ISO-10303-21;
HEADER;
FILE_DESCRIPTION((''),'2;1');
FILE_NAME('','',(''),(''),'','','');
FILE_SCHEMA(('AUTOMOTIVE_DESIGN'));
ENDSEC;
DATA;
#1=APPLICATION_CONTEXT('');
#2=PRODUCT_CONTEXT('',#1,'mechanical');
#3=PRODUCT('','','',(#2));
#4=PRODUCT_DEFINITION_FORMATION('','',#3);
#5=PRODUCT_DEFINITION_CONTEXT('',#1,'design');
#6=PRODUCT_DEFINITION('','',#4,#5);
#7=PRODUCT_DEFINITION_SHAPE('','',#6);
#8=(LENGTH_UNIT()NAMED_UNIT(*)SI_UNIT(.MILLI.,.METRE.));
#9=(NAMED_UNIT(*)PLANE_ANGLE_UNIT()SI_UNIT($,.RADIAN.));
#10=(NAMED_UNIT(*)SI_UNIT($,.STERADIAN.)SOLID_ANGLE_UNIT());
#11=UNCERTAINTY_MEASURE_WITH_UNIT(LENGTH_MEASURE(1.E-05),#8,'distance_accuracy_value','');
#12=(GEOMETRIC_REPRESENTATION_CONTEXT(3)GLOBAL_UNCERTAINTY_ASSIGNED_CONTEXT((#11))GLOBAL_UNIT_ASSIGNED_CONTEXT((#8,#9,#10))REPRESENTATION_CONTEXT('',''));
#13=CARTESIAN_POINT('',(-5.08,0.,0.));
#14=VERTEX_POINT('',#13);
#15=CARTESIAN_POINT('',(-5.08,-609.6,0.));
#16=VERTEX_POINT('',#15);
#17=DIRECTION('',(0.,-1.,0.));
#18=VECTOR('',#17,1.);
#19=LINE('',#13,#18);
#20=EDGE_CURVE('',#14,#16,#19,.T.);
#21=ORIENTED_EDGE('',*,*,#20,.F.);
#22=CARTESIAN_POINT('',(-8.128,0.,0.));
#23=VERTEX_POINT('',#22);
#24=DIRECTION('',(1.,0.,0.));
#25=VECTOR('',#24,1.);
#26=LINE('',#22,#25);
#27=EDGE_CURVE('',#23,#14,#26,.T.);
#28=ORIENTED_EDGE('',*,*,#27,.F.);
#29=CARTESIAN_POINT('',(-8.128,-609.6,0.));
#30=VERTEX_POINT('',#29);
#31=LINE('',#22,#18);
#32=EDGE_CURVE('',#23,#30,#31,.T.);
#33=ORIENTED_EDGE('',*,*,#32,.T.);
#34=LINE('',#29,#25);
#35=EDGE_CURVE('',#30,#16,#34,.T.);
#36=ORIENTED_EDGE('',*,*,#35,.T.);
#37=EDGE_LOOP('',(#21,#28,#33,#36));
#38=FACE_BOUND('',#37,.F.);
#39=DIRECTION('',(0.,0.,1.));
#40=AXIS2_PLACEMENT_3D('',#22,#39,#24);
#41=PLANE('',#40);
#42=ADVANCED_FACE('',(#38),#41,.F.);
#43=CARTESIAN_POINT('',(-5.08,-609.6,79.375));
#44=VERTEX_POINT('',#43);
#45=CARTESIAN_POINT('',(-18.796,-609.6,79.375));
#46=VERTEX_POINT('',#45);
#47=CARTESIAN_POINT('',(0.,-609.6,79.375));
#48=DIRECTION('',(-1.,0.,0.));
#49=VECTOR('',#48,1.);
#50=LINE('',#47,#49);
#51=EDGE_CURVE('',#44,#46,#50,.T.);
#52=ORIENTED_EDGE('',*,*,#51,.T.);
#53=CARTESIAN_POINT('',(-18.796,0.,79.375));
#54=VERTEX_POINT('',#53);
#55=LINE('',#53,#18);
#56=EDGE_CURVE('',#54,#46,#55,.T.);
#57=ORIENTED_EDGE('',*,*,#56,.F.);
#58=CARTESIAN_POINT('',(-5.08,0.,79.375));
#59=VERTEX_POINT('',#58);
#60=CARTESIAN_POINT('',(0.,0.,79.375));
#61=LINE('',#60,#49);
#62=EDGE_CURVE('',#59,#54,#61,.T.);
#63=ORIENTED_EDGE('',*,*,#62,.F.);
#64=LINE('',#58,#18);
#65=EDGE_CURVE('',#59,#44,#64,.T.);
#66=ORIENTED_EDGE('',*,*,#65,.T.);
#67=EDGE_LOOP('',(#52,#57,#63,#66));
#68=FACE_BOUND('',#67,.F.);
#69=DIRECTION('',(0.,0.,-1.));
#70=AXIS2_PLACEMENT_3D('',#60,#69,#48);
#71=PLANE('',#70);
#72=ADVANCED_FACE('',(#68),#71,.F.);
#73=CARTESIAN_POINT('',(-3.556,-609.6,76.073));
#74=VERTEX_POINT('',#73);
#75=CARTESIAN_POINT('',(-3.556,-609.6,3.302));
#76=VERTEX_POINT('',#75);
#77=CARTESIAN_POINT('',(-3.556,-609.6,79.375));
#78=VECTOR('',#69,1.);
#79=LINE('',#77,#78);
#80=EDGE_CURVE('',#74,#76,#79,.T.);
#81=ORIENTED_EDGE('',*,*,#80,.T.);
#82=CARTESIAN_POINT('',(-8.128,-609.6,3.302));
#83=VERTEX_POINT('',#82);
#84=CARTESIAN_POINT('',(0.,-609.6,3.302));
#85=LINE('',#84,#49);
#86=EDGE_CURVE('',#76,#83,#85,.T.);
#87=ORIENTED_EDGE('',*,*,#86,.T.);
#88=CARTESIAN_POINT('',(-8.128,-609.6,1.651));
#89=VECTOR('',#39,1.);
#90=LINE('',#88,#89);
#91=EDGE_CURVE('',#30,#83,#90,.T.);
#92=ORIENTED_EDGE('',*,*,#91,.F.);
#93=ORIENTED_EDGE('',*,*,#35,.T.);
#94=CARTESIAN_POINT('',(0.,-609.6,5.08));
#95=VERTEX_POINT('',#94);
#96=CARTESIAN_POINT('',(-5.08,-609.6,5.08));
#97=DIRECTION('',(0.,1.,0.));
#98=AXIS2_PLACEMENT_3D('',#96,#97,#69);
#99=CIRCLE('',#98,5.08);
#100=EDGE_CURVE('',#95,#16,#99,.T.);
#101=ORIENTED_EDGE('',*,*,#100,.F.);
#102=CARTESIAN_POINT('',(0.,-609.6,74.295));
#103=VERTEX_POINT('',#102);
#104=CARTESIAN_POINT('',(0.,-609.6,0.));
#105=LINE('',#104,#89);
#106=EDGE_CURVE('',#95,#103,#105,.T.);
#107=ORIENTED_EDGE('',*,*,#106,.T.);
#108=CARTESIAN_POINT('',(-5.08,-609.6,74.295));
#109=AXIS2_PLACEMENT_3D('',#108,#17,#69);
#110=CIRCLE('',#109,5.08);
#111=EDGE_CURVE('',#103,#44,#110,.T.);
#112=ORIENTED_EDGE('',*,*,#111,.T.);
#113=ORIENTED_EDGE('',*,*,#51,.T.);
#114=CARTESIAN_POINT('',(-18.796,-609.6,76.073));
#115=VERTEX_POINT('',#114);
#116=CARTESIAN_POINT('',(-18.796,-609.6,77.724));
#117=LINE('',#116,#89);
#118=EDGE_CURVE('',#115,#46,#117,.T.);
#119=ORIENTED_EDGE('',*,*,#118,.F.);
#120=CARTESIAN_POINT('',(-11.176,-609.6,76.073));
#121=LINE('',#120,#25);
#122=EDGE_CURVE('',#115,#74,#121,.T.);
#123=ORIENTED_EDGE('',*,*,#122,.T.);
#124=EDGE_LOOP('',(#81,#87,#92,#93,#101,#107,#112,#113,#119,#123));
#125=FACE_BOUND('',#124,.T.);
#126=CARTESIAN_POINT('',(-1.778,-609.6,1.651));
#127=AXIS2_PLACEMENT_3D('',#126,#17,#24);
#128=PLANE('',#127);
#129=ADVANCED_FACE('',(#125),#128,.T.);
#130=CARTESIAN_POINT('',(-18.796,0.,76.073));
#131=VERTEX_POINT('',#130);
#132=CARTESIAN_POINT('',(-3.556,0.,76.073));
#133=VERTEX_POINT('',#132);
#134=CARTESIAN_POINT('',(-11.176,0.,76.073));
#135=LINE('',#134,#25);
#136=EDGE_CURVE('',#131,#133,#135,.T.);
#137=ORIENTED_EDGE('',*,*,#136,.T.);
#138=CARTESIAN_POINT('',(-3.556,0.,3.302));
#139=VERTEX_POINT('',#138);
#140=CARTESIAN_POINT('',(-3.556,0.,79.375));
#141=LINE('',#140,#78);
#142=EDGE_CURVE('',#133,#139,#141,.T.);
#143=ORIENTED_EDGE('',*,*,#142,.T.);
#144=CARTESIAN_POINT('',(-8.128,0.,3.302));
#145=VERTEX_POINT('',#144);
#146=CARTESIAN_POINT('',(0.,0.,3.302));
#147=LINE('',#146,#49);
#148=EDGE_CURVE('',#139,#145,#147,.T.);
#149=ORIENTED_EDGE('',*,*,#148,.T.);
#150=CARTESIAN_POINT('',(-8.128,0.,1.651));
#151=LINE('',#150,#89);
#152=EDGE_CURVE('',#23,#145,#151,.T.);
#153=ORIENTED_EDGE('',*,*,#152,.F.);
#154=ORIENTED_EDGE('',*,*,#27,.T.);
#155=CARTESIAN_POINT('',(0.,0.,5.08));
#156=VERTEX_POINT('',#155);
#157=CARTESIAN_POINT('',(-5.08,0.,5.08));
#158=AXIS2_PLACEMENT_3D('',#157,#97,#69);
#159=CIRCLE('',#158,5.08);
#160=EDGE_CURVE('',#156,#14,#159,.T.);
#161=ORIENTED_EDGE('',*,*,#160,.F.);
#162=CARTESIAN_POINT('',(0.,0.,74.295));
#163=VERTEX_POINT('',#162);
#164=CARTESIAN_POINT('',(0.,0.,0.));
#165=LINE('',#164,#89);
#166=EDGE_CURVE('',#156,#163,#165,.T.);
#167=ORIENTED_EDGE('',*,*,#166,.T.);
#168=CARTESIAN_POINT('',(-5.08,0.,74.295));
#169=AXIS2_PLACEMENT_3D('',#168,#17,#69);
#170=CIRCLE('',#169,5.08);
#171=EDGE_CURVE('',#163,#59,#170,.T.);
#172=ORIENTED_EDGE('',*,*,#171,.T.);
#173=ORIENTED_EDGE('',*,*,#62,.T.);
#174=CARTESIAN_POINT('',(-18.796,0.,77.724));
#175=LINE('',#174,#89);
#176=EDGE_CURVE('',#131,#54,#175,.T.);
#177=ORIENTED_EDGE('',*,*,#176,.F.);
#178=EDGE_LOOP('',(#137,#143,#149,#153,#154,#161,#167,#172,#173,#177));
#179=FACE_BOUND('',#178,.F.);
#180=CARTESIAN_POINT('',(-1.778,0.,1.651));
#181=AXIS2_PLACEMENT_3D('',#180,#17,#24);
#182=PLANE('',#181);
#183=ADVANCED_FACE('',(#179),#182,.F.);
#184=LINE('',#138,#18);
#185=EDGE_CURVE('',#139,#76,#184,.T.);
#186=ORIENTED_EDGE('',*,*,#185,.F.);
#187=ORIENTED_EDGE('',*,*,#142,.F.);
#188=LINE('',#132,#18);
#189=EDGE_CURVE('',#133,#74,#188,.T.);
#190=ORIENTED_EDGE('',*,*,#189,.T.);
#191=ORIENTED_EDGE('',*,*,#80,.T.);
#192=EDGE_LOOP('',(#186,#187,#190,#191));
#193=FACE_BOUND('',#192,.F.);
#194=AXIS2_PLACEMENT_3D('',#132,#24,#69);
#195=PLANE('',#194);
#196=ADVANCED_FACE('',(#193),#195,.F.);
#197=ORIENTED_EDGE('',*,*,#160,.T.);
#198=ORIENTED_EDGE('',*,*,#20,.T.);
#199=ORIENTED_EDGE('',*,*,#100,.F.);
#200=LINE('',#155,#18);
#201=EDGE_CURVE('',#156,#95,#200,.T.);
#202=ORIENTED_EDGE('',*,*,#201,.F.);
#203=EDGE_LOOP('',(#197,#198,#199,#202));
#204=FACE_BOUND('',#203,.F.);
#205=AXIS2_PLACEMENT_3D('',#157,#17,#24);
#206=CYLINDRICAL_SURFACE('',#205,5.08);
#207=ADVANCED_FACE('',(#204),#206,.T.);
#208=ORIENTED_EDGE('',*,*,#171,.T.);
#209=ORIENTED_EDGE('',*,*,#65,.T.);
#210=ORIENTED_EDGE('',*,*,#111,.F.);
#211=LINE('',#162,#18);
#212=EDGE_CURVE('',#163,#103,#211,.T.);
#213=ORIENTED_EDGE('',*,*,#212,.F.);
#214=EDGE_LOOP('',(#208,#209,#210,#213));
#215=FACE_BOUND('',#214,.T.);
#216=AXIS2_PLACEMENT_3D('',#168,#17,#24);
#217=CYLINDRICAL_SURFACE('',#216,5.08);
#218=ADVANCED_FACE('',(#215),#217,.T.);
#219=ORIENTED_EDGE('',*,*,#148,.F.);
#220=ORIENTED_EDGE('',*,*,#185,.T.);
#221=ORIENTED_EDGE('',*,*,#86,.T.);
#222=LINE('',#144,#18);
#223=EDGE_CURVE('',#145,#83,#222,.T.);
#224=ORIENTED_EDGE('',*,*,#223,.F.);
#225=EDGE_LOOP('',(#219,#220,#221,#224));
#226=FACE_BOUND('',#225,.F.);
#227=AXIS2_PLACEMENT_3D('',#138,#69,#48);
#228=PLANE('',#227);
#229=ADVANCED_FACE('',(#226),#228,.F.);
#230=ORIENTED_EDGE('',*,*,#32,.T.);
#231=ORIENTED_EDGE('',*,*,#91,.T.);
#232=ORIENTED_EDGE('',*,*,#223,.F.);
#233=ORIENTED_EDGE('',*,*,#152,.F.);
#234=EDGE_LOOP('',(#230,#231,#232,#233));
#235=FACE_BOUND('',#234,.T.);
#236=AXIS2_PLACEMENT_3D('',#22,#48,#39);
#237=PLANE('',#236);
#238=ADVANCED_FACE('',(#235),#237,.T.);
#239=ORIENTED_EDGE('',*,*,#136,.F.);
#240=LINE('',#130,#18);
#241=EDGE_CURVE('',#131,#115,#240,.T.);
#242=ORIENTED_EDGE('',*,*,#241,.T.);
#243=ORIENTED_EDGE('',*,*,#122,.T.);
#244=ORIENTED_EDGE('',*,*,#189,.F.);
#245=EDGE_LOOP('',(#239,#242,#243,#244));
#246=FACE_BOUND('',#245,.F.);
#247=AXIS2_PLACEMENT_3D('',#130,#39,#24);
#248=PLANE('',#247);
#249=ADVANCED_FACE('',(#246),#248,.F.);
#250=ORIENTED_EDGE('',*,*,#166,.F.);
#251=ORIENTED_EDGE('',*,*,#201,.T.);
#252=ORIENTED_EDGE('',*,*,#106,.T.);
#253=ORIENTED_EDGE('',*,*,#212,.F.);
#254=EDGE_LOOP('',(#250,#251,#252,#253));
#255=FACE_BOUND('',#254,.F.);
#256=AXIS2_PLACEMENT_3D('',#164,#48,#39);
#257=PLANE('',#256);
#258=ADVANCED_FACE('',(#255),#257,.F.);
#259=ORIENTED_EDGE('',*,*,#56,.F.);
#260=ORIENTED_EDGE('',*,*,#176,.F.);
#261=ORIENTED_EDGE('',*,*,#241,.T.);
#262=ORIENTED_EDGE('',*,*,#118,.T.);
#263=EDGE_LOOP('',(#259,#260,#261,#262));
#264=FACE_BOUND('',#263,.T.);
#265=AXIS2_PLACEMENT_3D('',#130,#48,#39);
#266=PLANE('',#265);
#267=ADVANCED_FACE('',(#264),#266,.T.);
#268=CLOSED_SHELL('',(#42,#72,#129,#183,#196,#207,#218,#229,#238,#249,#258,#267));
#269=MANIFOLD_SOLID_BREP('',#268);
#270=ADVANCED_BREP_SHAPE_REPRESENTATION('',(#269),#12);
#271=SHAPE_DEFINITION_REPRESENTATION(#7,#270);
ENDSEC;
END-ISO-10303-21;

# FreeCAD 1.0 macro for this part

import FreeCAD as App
import Part
import Sketcher
from FreeCAD import Vector
Q = App.Units.Quantity


def edges_at(feature, points):
    """Names of the edges that pass closest to the given points."""
    edges = feature.Shape.Edges
    near = lambda p: min(range(len(edges)), key=lambda i: edges[i].distToShape(Part.Vertex(*p))[0])
    return sorted({f"Edge{near(p) + 1}" for p in points})

doc = App.newDocument("Part")
body = doc.addObject("PartDesign::Body", "Body")

# Sketch on XZ plane
sketch1 = body.newObject("Sketcher::SketchObject", "Sketch")
sketch1.AttachmentSupport = (doc.getObject("XZ_Plane"), [""])
sketch1.MapMode = "FlatFace"
sketch1.addGeometry([
    Part.LineSegment(Vector(0, 0, 0), Vector(0, 79.4, 0)),  # 0
    Part.LineSegment(Vector(0, 79.4, 0), Vector(-18.8, 79.4, 0)),  # 1
    Part.LineSegment(Vector(-18.8, 79.4, 0), Vector(-18.8, 76.1, 0)),  # 2
    Part.LineSegment(Vector(-18.8, 76.1, 0), Vector(-3.6, 76.1, 0)),  # 3
    Part.LineSegment(Vector(-3.6, 76.1, 0), Vector(-3.6, 3.3, 0)),  # 4
    Part.LineSegment(Vector(-3.6, 3.3, 0), Vector(-8.1, 3.3, 0)),  # 5
    Part.LineSegment(Vector(-8.1, 3.3, 0), Vector(-8.1, 0, 0)),  # 6
    Part.LineSegment(Vector(-8.1, 0, 0), Vector(0, 0, 0)),  # 7
], False)
sketch1.addConstraint([
    Sketcher.Constraint("Coincident", 0, 2, 1, 1),
    Sketcher.Constraint("Coincident", 1, 2, 2, 1),
    Sketcher.Constraint("Coincident", 2, 2, 3, 1),
    Sketcher.Constraint("Coincident", 3, 2, 4, 1),
    Sketcher.Constraint("Coincident", 4, 2, 5, 1),
    Sketcher.Constraint("Coincident", 5, 2, 6, 1),
    Sketcher.Constraint("Coincident", 6, 2, 7, 1),
    Sketcher.Constraint("Coincident", 7, 2, 0, 1),
    Sketcher.Constraint("Vertical", 0),
    Sketcher.Constraint("Horizontal", 1),
    Sketcher.Constraint("Vertical", 2),
    Sketcher.Constraint("Horizontal", 3),
    Sketcher.Constraint("Vertical", 4),
    Sketcher.Constraint("Horizontal", 5),
    Sketcher.Constraint("Vertical", 6),
    Sketcher.Constraint("Horizontal", 7),
    Sketcher.Constraint("Coincident", 7, 2, -1, 1),
    Sketcher.Constraint("Equal", 2, 6),
    Sketcher.Constraint("DistanceX", 3, 1, 3, 2, Q("0.6 in")),
    Sketcher.Constraint("DistanceX", 1, 2, 1, 1, Q("0.74 in")),
    Sketcher.Constraint("DistanceX", 5, 2, 5, 1, Q("0.18 in")),
    Sketcher.Constraint("DistanceY", 2, 2, 2, 1, Q("0.13 in")),
    Sketcher.Constraint("DistanceY", 0, 1, 0, 2, Q("3.125 in")),
])
pad1 = body.newObject("PartDesign::Pad", "Pad")
pad1.Profile = sketch1
pad1.Length = Q("24 in")
doc.recompute()

fillet = body.newObject("PartDesign::Fillet", "Fillet")
fillet.Base = (pad1, edges_at(pad1, [(0, -304.8, 79.375), (0, -304.8, 0)]))
fillet.Radius = Q("0.2 in")

doc.recompute()
